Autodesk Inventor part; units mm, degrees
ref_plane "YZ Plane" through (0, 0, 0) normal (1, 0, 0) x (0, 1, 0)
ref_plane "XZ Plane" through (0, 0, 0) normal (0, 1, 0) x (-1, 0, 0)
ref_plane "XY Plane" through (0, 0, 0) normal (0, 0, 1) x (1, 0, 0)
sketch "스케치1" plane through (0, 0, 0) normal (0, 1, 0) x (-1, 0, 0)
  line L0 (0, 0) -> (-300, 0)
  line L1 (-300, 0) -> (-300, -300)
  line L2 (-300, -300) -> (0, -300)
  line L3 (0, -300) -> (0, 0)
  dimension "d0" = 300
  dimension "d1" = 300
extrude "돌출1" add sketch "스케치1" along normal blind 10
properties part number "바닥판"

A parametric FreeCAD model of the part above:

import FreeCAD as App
import Part
import Sketcher


def add_polygon(sketch, points):
    """Adds a closed chain of lines whose ends are joined by coincident constraints."""
    first, n = sketch.GeometryCount, len(points)
    for a, b in zip(points, points[1:] + points[:1]):
        sketch.addGeometry(Part.LineSegment(App.Vector(*a, 0), App.Vector(*b, 0)), False)
    for i in range(n):
        sketch.addConstraint(Sketcher.Constraint("Coincident", first + i, 2, first + (i + 1) % n, 1))

doc = App.newDocument("Part")
body = doc.addObject("PartDesign::Body", "Body")

# Sketch on XZ plane
sketch1 = body.newObject("Sketcher::SketchObject", "Sketch")
sketch1.AttachmentSupport = (doc.getObject("XZ_Plane"), [""])
sketch1.MapMode = "FlatFace"
add_polygon(sketch1, [(0, -300), (0, 0), (300, 0), (300, -300)])  # lines 0-3
sketch1.addConstraint(Sketcher.Constraint("Vertical", 0))
sketch1.addConstraint(Sketcher.Constraint("Horizontal", 1))
sketch1.addConstraint(Sketcher.Constraint("Vertical", 2))
sketch1.addConstraint(Sketcher.Constraint("Horizontal", 3))
sketch1.addConstraint(Sketcher.Constraint("Coincident", 0, 2, -1, 1))
sketch1.addConstraint(Sketcher.Constraint("Equal", 3, 0))
sketch1.addConstraint(Sketcher.Constraint("DistanceX", 1, 1, 1, 2, 300.0))
pad1 = body.newObject("PartDesign::Pad", "Pad")
pad1.Profile = sketch1
pad1.Length = 10
pad1.Reversed = True

doc.recompute()
